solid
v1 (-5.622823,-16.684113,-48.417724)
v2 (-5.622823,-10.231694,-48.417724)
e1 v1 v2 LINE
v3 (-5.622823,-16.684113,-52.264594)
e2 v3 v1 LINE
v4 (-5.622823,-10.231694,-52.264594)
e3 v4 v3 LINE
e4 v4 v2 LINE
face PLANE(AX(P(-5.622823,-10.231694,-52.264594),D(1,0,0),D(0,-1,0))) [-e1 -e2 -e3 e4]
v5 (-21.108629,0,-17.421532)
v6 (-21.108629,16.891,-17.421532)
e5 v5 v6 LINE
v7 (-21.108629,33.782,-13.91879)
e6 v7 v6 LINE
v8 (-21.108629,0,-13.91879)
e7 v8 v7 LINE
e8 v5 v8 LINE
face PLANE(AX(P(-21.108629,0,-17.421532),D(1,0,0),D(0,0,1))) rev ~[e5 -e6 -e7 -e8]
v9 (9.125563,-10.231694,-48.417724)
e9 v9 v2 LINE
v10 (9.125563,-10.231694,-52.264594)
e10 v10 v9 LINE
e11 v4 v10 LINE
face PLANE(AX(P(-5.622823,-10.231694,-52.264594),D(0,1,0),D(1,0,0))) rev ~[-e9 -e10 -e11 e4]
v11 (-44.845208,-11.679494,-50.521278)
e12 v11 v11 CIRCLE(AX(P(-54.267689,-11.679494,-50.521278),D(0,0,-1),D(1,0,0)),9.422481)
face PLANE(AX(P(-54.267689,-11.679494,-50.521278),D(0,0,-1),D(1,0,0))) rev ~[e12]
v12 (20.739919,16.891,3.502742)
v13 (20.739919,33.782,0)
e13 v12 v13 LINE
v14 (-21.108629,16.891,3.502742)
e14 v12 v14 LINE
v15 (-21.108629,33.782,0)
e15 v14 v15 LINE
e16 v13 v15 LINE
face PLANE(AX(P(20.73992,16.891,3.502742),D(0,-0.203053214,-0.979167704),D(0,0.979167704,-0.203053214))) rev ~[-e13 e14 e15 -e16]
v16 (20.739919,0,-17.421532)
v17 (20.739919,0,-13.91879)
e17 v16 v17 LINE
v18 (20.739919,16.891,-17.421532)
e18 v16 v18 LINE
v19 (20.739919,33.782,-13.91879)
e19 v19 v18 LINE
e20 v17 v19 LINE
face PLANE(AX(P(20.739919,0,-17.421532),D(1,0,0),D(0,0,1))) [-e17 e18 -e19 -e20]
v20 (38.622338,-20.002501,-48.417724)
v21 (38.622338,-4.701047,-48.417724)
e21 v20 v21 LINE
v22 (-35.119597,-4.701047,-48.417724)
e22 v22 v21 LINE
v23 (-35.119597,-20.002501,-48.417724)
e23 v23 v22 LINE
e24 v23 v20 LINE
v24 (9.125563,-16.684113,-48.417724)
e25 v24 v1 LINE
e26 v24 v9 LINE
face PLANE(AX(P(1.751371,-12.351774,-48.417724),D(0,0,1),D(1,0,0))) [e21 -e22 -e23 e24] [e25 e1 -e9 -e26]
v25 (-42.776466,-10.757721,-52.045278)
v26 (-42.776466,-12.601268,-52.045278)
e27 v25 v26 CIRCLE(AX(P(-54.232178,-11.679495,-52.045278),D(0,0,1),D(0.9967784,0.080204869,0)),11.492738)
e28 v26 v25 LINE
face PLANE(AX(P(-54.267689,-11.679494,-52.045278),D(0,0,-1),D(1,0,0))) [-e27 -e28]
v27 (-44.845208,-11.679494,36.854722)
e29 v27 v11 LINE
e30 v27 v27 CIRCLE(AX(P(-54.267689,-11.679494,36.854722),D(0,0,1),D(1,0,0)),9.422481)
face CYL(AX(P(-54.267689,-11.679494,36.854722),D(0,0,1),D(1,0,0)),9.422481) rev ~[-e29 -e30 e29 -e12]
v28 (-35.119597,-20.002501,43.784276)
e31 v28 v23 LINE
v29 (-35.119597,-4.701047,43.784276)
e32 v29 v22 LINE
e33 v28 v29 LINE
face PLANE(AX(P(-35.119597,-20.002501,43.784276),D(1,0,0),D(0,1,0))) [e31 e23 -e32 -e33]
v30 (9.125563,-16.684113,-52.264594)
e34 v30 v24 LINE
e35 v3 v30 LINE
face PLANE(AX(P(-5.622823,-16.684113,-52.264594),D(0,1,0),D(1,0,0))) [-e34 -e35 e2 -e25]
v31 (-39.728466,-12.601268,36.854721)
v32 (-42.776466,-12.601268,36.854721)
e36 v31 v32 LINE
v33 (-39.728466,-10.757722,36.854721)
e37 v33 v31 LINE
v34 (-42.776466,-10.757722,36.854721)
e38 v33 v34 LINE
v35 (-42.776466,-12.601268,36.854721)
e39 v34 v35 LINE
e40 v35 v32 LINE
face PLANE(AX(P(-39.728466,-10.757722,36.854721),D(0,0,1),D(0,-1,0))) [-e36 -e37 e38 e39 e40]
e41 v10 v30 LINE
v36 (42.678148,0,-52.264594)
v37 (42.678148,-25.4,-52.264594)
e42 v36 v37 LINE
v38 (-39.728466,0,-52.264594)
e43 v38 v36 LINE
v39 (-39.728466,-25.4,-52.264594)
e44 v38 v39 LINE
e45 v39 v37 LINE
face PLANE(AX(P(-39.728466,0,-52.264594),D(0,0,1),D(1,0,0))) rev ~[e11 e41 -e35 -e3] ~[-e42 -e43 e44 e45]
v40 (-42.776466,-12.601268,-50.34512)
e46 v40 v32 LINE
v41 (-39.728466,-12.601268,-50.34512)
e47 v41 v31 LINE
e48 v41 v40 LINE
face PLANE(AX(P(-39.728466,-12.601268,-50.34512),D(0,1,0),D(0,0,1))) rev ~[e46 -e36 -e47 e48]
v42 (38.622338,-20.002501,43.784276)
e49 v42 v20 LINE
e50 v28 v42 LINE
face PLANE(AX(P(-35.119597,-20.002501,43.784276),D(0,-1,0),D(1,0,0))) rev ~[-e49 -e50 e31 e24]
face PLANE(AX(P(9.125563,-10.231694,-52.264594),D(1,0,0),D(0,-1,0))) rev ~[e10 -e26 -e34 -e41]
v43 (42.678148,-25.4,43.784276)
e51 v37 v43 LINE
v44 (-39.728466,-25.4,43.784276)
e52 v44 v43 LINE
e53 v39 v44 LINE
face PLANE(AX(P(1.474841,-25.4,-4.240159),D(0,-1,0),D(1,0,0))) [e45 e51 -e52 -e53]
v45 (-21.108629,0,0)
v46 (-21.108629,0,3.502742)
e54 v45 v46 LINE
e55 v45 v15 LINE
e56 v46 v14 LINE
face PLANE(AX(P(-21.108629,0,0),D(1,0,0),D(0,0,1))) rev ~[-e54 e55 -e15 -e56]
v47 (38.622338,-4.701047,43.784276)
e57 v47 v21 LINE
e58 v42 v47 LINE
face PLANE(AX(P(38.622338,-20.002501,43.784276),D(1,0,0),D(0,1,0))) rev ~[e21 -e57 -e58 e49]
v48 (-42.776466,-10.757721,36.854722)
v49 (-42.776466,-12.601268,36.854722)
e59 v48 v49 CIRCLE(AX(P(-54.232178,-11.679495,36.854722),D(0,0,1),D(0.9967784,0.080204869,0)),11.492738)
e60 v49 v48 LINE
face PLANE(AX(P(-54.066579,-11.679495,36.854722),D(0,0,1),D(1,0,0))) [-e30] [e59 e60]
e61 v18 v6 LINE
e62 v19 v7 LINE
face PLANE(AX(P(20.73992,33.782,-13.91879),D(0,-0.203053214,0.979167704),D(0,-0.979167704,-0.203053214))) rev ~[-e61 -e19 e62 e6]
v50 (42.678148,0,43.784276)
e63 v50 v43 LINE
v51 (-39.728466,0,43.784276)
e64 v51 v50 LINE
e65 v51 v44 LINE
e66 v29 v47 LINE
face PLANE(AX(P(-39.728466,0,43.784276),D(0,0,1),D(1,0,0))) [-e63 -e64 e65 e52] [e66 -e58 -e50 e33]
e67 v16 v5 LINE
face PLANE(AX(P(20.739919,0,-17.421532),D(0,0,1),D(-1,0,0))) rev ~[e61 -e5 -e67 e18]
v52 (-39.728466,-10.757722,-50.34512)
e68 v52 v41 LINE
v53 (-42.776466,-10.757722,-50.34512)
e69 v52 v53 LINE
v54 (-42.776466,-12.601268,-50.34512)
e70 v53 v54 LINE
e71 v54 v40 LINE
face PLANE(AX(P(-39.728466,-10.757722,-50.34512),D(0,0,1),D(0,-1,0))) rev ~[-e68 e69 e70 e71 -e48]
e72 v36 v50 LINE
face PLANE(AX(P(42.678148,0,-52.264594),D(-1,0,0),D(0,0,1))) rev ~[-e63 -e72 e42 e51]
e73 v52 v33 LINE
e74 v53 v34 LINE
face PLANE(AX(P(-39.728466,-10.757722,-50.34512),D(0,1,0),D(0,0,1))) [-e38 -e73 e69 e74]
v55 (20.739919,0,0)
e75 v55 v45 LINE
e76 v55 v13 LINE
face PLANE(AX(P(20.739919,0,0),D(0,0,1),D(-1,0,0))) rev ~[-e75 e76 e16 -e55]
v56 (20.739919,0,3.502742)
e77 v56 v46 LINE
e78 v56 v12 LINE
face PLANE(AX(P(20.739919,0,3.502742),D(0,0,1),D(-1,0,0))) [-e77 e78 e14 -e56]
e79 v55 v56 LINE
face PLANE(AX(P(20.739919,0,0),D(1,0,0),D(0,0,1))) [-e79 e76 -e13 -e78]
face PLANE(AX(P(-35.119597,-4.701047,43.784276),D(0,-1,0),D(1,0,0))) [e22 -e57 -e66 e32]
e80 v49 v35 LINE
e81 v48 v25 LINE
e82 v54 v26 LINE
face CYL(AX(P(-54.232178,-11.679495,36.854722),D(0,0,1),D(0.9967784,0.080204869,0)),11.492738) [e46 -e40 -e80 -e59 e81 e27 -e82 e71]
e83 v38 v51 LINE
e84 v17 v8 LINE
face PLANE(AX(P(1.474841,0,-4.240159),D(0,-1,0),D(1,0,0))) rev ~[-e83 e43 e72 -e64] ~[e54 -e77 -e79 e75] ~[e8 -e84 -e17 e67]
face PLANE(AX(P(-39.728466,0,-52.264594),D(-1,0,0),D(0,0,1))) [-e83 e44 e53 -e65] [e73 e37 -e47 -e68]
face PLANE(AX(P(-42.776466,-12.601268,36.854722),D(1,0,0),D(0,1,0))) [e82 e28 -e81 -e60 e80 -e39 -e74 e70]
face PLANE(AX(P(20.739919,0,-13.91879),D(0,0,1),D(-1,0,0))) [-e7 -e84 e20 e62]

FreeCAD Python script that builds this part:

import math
import FreeCAD as App
import Part
import Sketcher

V = App.Vector
Q = App.Units.Quantity


def add_polygon(sketch, points):
    """Adds a closed chain of lines whose ends are joined by coincident constraints."""
    first, n = sketch.GeometryCount, len(points)
    for a, b in zip(points, points[1:] + points[:1]):
        sketch.addGeometry(Part.LineSegment(App.Vector(*a, 0), App.Vector(*b, 0)), False)
    for i in range(n):
        sketch.addConstraint(Sketcher.Constraint("Coincident", first + i, 2, first + (i + 1) % n, 1))

doc = App.newDocument("Part")
body = doc.addObject("PartDesign::Body", "Body")

sketch1 = body.newObject("Sketcher::SketchObject", "Sketch")
sketch1.AttachmentSupport = (doc.getObject("XZ_Plane"), [""])
sketch1.MapMode = "FlatFace"
add_polygon(sketch1, [(-40, 44), (-40, -52), (43, -52), (43, 44)])
sketch1.addConstraint(Sketcher.Constraint("Vertical", 0))
sketch1.addConstraint(Sketcher.Constraint("Horizontal", 1))
sketch1.addConstraint(Sketcher.Constraint("Vertical", 2))
sketch1.addConstraint(Sketcher.Constraint("Horizontal", 3))
sketch1.addConstraint(Sketcher.Constraint("DistanceY", 0, 2, 0, 1, 96.04887))
sketch1.addConstraint(Sketcher.Constraint("DistanceX", 1, 1, 1, 2, 82.406614))
sketch1.addConstraint(Sketcher.Constraint("DistanceX", 0, 2, -1, 1, 39.728466))
sketch1.addConstraint(Sketcher.Constraint("DistanceY", 0, 2, -1, 1, 52.264594))
pad1 = body.newObject("PartDesign::Pad", "Pad")
pad1.Profile = sketch1
pad1.Length = Q("1 in")

sketch2 = body.newObject("Sketcher::SketchObject", "Sketch001")
sketch2.AttachmentSupport = (doc.getObject("XY_Plane"), [""])
sketch2.MapMode = "FlatFace"
sketch2.AttachmentOffset = App.Placement(V(0, 0, 43.784276), App.Rotation())
add_polygon(sketch2, [(-35, -5), (-35, -20), (39, -20), (39, -5)])
sketch2.addConstraint(Sketcher.Constraint("Vertical", 0))
sketch2.addConstraint(Sketcher.Constraint("Horizontal", 1))
sketch2.addConstraint(Sketcher.Constraint("Vertical", 2))
sketch2.addConstraint(Sketcher.Constraint("Horizontal", 3))
sketch2.addConstraint(Sketcher.Constraint("DistanceY", 0, 2, -1, 1, Q("0.7875 in")))
sketch2.addConstraint(Sketcher.Constraint("DistanceX", 1, 1, 1, 2, 73.741935))
sketch2.addConstraint(Sketcher.Constraint("DistanceY", 0, 2, 0, 1, 15.301453))
sketch2.addConstraint(Sketcher.Constraint("DistanceX", -1, 1, 1, 2, 38.622338))
pocket1 = body.newObject("PartDesign::Pocket", "Pocket")
pocket1.Profile = sketch2
pocket1.Length = Q("3.63 in")

sketch3 = body.newObject("Sketcher::SketchObject", "Sketch002")
sketch3.AttachmentSupport = (doc.getObject("XZ_Plane"), [""])
sketch3.MapMode = "FlatFace"
add_polygon(sketch3, [(20.7, 3.5), (20.7, 0), (-21.1, 0), (-21.1, 3.5)])
add_polygon(sketch3, [(20.7, -13.9), (20.7, -17.4), (-21.1, -17.4), (-21.1, -13.9)])
sketch3.addConstraint(Sketcher.Constraint("Vertical", 0))
sketch3.addConstraint(Sketcher.Constraint("Horizontal", 1))
sketch3.addConstraint(Sketcher.Constraint("Vertical", 2))
sketch3.addConstraint(Sketcher.Constraint("Horizontal", 3))
sketch3.addConstraint(Sketcher.Constraint("Vertical", 4))
sketch3.addConstraint(Sketcher.Constraint("Horizontal", 5))
sketch3.addConstraint(Sketcher.Constraint("Vertical", 6))
sketch3.addConstraint(Sketcher.Constraint("Horizontal", 7))
sketch3.addConstraint(Sketcher.Constraint("PointOnObject", 0, 2, -1))
sketch3.addConstraint(Sketcher.Constraint("Vertical", 3, 2, 4, 2))
sketch3.addConstraint(Sketcher.Constraint("Vertical", 2, 2, 5, 2))
sketch3.addConstraint(Sketcher.Constraint("Equal", 2, 4))
sketch3.addConstraint(Sketcher.Constraint("DistanceX", 1, 2, 1, 1, 41.848549))
sketch3.addConstraint(Sketcher.Constraint("DistanceY", 0, 2, 0, 1, 3.502742))
sketch3.addConstraint(Sketcher.Constraint("DistanceX", -1, 1, 0, 2, 20.739919))
sketch3.addConstraint(Sketcher.Constraint("DistanceY", 4, 2, -1, 1, 17.421532))
pad2 = body.newObject("PartDesign::Pad", "Pad001")
pad2.Profile = sketch3
pad2.Length = Q("1.33 in")
pad2.Reversed = True

sketch4 = body.newObject("Sketcher::SketchObject", "Sketch003")
sketch4.AttachmentSupport = (doc.getObject("YZ_Plane"), [""])
sketch4.MapMode = "FlatFace"
sketch4.AttachmentOffset = App.Placement(V(0, 0, 20.73992), App.Rotation())
add_polygon(sketch4, [(33.8, 3.5), (16.9, 3.5), (33.8, 0)])
sketch4.addConstraint(Sketcher.Constraint("Horizontal", 0))
sketch4.addConstraint(Sketcher.Constraint("Vertical", 2))
sketch4.addConstraint(Sketcher.Constraint("PointOnObject", 1, 2, -1))
sketch4.addConstraint(Sketcher.Constraint("DistanceX", 0, 2, 0, 1, Q("0.665 in")))
sketch4.addConstraint(Sketcher.Constraint("DistanceX", -1, 1, 1, 2, Q("1.33 in")))
sketch4.addConstraint(Sketcher.Constraint("DistanceY", 2, 1, 2, 2, 3.502742))
pocket2 = body.newObject("PartDesign::Pocket", "Pocket001")
pocket2.Profile = sketch4
pocket2.Length = Q("2.32 in")

sketch5 = body.newObject("Sketcher::SketchObject", "Sketch004")
sketch5.AttachmentSupport = (doc.getObject("YZ_Plane"), [""])
sketch5.MapMode = "FlatFace"
sketch5.AttachmentOffset = App.Placement(V(0, 0, 20.73992), App.Rotation())
add_polygon(sketch5, [(33.8, -13.9), (16.9, -17.4), (33.8, -17.4)])
sketch5.addConstraint(Sketcher.Constraint("Horizontal", 1))
sketch5.addConstraint(Sketcher.Constraint("Vertical", 2))
sketch5.addConstraint(Sketcher.Constraint("DistanceX", 1, 1, 1, 2, Q("0.665 in")))
sketch5.addConstraint(Sketcher.Constraint("DistanceX", -1, 1, 1, 2, Q("1.33 in")))
sketch5.addConstraint(Sketcher.Constraint("DistanceY", 2, 1, 2, 2, 3.502742))
sketch5.addConstraint(Sketcher.Constraint("DistanceY", 0, 2, -1, 1, 17.421532))
pocket3 = body.newObject("PartDesign::Pocket", "Pocket002")
pocket3.Profile = sketch5
pocket3.Length = Q("1.98 in")

sketch6 = body.newObject("Sketcher::SketchObject", "Sketch005")
sketch6.AttachmentSupport = (doc.getObject("XY_Plane"), [""])
sketch6.MapMode = "FlatFace"
sketch6.AttachmentOffset = App.Placement(V(0, 0, -52.264594), App.Rotation())
add_polygon(sketch6, [(-6, -17), (-6, -10), (9, -10), (9, -17)])
sketch6.addConstraint(Sketcher.Constraint("Vertical", 0))
sketch6.addConstraint(Sketcher.Constraint("Horizontal", 1))
sketch6.addConstraint(Sketcher.Constraint("Vertical", 2))
sketch6.addConstraint(Sketcher.Constraint("Horizontal", 3))
sketch6.addConstraint(Sketcher.Constraint("DistanceY", 0, 1, 0, 2, 6.452419))
sketch6.addConstraint(Sketcher.Constraint("DistanceX", 1, 1, 1, 2, 14.748386))
sketch6.addConstraint(Sketcher.Constraint("DistanceX", 0, 2, -1, 1, 5.622823))
sketch6.addConstraint(Sketcher.Constraint("DistanceY", 0, 2, -1, 1, 10.231694))
pocket4 = body.newObject("PartDesign::Pocket", "Pocket003")
pocket4.Profile = sketch6
pocket4.Length = Q("1 in")
pocket4.Reversed = True

sketch7 = body.newObject("Sketcher::SketchObject", "Sketch006")
sketch7.AttachmentSupport = (doc.getObject("YZ_Plane"), [""])
sketch7.MapMode = "FlatFace"
sketch7.AttachmentOffset = App.Placement(V(0, 0, -39.728466), App.Rotation())
add_polygon(sketch7, [(-10.8, 36.9), (-10.8, -50.3), (-12.6, -50.3), (-12.6, 36.9)])
sketch7.addConstraint(Sketcher.Constraint("Vertical", 0))
sketch7.addConstraint(Sketcher.Constraint("Horizontal", 1))
sketch7.addConstraint(Sketcher.Constraint("Vertical", 2))
sketch7.addConstraint(Sketcher.Constraint("Horizontal", 3))
sketch7.addConstraint(Sketcher.Constraint("DistanceY", 0, 2, 0, 1, 87.199841))
sketch7.addConstraint(Sketcher.Constraint("DistanceX", 1, 2, 1, 1, 1.843547))
sketch7.addConstraint(Sketcher.Constraint("DistanceX", 0, 2, -1, 1, 10.757722))
sketch7.addConstraint(Sketcher.Constraint("DistanceY", 0, 2, -1, 1, 50.34512))
pad3 = body.newObject("PartDesign::Pad", "Pad002")
pad3.Profile = sketch7
pad3.Length = Q("0.12 in")
pad3.Reversed = True

sketch8 = body.newObject("Sketcher::SketchObject", "Sketch007")
sketch8.AttachmentSupport = (doc.getObject("XY_Plane"), [""])
sketch8.MapMode = "FlatFace"
sketch8.AttachmentOffset = App.Placement(V(0, 0, 36.854722), App.Rotation())
sketch8.addGeometry(Part.LineSegment(V(-42.8, -12.6, 0), V(-42.8, -10.8, 0)), False)
sketch8.addGeometry(Part.ArcOfCircle(Part.Circle(V(-54.2, -11.7, 0), V(0, 0, 1), 11.5), math.radians(5), math.radians(355)), False)
sketch8.addGeometry(Part.Circle(V(-54.3, -11.7, 0), V(0, 0, 1), 9.4), False)
sketch8.addConstraint(Sketcher.Constraint("Coincident", 0, 1, 1, 2))
sketch8.addConstraint(Sketcher.Constraint("Coincident", 1, 1, 0, 2))
sketch8.addConstraint(Sketcher.Constraint("Vertical", 0))
sketch8.addConstraint(Sketcher.Constraint("Horizontal", 1, 3, 2, 3))
sketch8.addConstraint(Sketcher.Constraint("Diameter", 2, 18.844962))
sketch8.addConstraint(Sketcher.Constraint("Radius", 1, 11.492738))
sketch8.addConstraint(Sketcher.Constraint("DistanceY", 0, 1, 0, 2, 1.843547))
sketch8.addConstraint(Sketcher.Constraint("DistanceX", 1, 3, -1, 1, 54.232178))
sketch8.addConstraint(Sketcher.Constraint("DistanceX", 2, 3, -1, 1, 54.267689))
sketch8.addConstraint(Sketcher.Constraint("DistanceY", 1, 1, -1, 1, 10.757721))
pad4 = body.newObject("PartDesign::Pad", "Pad003")
pad4.Profile = sketch8
pad4.Length = Q("3.5 in")
pad4.Reversed = True

sketch9 = body.newObject("Sketcher::SketchObject", "Sketch008")
sketch9.AttachmentSupport = (doc.getObject("XY_Plane"), [""])
sketch9.MapMode = "FlatFace"
sketch9.AttachmentOffset = App.Placement(V(0, 0, -52.045278), App.Rotation())
sketch9.addGeometry(Part.Circle(V(-54, -12, 0), V(0, 0, 1), 9), False)
sketch9.addConstraint(Sketcher.Constraint("Diameter", 0, 18.844962))
sketch9.addConstraint(Sketcher.Constraint("DistanceX", 0, 3, -1, 1, 54.267689))
sketch9.addConstraint(Sketcher.Constraint("DistanceY", 0, 3, -1, 1, 11.679494))
pad5 = body.newObject("PartDesign::Pad", "Pad004")
pad5.Profile = sketch9
pad5.Length = Q("0.06 in")

doc.recompute()
